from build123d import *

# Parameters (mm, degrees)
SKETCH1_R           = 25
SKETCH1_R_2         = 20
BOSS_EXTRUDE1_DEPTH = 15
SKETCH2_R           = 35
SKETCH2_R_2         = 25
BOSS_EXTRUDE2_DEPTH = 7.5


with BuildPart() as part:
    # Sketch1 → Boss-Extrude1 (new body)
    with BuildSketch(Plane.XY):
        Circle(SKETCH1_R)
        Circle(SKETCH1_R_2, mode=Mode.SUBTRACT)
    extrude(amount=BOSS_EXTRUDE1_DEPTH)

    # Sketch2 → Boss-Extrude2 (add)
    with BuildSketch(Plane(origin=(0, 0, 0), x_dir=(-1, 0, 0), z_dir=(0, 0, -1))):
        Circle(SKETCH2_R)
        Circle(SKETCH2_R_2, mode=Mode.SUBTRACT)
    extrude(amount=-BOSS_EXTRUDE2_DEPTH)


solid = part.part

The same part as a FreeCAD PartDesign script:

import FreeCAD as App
import Part
import Sketcher

V = App.Vector
Q = App.Units.Quantity

doc = App.newDocument("Part")
body = doc.addObject("PartDesign::Body", "Body")

sketch1 = body.newObject("Sketcher::SketchObject", "Sketch")
sketch1.AttachmentSupport = (doc.getObject("XY_Plane"), [""])
sketch1.MapMode = "FlatFace"
sketch1.addGeometry([
    Part.Circle(V(0, 0, 0), V(0, 0, 1), 25),
    Part.Circle(V(0, 0, 0), V(0, 0, 1), 20),
], False)
sketch1.addConstraint([
    Sketcher.Constraint("Coincident", 0, 3, -1, 1),
    Sketcher.Constraint("Coincident", 1, 3, -1, 1),
    Sketcher.Constraint("Diameter", 0, Q("50 mm")),
    Sketcher.Constraint("Diameter", 1, Q("40 mm")),
])
pad1 = body.newObject("PartDesign::Pad", "Pad")
pad1.Profile = sketch1
pad1.Length = 15

sketch2 = body.newObject("Sketcher::SketchObject", "Sketch001")
sketch2.AttachmentSupport = (doc.getObject("XY_Plane"), [""])
sketch2.MapMode = "FlatFace"
sketch2.addGeometry([
    Part.Circle(V(0, 0, 0), V(0, 0, 1), 35),
    Part.Circle(V(0, 0, 0), V(0, 0, 1), 25),
], False)
sketch2.addConstraint([
    Sketcher.Constraint("Coincident", 0, 3, -1, 1),
    Sketcher.Constraint("Coincident", 1, 3, -1, 1),
    Sketcher.Constraint("Diameter", 0, Q("70 mm")),
    Sketcher.Constraint("Diameter", 1, Q("50 mm")),
])
pad2 = body.newObject("PartDesign::Pad", "Pad001")
pad2.Profile = sketch2
pad2.Length = 7.5

doc.recompute()
